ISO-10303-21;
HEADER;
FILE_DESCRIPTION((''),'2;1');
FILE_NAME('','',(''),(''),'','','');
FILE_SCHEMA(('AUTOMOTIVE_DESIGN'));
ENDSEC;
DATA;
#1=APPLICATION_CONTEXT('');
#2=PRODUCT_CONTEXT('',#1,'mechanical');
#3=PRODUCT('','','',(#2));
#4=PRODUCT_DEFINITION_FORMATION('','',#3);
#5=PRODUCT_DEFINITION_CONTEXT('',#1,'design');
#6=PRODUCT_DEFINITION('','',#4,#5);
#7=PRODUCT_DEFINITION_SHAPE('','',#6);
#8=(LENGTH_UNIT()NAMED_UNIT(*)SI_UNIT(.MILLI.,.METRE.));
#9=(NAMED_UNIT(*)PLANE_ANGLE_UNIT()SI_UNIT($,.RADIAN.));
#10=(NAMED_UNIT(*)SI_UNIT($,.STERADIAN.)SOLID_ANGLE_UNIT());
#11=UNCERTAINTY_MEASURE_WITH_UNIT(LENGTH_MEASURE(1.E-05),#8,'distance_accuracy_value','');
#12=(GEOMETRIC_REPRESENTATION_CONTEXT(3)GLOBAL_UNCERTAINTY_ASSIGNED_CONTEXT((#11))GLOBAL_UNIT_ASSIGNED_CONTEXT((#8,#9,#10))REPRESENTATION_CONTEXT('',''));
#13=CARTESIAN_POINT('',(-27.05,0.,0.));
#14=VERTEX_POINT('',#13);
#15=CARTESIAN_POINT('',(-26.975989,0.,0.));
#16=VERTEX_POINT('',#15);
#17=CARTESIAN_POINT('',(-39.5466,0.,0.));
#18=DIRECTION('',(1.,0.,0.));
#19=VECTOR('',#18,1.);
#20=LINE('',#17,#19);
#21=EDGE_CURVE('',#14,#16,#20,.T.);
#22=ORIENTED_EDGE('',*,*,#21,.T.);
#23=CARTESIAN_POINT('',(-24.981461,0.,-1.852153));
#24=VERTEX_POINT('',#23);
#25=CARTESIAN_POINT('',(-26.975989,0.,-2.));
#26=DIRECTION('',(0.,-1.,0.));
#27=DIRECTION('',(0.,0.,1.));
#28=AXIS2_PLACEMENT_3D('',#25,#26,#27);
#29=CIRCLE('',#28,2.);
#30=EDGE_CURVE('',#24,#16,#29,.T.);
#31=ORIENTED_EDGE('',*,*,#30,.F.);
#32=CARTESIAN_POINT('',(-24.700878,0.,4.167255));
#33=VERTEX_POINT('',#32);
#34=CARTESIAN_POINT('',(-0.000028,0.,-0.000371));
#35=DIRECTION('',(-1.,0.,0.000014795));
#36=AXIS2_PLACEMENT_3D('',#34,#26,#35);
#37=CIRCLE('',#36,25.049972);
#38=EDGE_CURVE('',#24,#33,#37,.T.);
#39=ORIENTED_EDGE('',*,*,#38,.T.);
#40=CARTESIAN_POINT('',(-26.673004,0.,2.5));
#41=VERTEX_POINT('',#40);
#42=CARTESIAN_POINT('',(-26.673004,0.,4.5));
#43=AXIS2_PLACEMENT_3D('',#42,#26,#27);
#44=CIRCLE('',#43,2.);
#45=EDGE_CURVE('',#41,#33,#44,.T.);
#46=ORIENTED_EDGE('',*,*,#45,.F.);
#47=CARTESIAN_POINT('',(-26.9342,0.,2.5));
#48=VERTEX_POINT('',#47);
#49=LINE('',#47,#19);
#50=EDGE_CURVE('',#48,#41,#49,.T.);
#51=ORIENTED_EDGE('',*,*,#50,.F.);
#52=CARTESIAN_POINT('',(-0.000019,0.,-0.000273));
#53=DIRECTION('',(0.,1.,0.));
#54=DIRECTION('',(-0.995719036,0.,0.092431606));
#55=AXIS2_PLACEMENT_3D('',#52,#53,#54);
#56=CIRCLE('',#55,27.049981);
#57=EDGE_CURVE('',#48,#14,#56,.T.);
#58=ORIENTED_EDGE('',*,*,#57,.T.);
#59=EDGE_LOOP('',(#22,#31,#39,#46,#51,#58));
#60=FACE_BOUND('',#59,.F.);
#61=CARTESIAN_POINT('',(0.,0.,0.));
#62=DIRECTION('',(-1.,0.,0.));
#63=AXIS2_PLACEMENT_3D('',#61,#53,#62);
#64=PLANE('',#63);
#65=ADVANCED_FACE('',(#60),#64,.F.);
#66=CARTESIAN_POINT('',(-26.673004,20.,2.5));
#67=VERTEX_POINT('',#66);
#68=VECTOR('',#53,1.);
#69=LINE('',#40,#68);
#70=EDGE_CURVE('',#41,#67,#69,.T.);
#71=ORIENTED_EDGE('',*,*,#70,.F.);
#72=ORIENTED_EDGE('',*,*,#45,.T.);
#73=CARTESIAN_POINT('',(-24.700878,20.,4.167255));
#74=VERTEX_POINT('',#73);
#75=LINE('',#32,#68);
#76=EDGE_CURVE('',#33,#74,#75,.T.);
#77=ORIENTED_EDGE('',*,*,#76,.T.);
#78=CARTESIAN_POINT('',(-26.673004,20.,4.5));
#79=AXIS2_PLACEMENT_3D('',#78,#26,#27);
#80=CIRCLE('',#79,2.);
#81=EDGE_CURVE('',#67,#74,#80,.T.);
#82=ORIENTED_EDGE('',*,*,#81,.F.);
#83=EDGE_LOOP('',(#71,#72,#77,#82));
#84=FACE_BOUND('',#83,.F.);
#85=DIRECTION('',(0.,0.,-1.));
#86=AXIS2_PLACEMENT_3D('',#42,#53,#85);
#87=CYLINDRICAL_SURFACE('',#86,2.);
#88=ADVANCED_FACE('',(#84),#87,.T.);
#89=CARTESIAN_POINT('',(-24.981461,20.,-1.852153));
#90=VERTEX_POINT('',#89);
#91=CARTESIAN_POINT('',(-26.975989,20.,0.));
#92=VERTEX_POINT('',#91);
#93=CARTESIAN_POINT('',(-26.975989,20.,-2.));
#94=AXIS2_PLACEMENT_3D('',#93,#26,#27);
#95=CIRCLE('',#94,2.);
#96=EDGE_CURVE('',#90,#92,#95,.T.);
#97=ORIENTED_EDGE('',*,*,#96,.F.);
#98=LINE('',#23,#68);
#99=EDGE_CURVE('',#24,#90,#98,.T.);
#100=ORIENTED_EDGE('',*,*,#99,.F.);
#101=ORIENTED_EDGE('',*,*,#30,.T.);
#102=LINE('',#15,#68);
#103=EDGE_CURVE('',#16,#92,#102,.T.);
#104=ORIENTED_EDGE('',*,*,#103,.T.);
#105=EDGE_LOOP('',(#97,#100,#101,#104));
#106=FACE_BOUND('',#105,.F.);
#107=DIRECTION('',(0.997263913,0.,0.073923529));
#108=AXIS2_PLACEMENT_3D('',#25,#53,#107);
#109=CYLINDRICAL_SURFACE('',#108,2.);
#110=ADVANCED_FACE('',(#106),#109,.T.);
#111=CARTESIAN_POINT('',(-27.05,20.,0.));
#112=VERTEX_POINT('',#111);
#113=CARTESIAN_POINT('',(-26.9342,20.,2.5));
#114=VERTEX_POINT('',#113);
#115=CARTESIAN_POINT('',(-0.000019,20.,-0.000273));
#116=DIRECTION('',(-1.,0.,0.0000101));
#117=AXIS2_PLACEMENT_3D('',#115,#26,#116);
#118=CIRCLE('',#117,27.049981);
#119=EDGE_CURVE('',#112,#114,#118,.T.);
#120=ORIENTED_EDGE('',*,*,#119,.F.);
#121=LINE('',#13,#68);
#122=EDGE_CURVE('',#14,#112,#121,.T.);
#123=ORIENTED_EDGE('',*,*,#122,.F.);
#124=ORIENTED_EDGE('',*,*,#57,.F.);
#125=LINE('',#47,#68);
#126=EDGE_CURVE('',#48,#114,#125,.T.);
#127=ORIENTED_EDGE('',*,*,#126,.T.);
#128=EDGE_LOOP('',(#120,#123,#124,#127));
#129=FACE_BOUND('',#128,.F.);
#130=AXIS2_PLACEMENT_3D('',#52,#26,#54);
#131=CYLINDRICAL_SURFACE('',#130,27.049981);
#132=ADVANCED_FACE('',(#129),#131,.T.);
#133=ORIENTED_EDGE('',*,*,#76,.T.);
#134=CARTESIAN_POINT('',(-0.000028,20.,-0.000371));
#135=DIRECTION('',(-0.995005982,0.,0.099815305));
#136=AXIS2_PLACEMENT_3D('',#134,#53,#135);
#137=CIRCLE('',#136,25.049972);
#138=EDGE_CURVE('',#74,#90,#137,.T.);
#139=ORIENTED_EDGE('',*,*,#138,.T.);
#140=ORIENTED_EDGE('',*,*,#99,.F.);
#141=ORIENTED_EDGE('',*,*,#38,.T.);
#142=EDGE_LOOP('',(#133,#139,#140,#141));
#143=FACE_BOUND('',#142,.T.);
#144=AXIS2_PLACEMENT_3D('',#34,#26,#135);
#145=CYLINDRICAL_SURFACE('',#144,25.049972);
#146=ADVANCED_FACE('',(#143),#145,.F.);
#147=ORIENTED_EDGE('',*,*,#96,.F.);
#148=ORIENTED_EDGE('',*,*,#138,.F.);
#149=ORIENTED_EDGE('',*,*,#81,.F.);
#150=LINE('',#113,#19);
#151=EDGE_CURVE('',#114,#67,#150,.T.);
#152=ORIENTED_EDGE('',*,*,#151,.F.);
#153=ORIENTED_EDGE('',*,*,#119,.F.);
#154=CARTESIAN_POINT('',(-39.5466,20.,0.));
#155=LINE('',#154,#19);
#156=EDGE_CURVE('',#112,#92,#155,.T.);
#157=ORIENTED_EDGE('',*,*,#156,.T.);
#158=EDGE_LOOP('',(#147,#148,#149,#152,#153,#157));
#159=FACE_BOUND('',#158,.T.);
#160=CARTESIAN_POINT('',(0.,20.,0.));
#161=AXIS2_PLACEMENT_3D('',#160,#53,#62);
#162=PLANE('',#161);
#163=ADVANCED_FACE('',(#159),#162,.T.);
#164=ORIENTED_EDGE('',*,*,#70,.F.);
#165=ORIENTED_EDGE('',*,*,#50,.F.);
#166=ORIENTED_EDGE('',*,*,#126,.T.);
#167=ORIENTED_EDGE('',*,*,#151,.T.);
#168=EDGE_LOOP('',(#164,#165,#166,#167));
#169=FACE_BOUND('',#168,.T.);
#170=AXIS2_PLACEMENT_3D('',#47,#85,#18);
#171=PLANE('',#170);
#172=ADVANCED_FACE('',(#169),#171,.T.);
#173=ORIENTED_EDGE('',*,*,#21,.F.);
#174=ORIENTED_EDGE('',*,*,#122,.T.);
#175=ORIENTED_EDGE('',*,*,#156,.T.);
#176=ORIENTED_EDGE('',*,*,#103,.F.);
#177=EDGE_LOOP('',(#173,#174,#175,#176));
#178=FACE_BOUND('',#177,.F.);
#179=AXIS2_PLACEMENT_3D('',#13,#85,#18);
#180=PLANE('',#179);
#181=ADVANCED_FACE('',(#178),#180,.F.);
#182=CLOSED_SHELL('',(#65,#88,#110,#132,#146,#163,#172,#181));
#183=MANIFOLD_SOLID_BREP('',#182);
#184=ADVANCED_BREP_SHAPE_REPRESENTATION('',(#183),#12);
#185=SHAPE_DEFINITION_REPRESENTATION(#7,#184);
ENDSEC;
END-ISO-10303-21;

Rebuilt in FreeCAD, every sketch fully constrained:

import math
import FreeCAD as App
import Part
import Sketcher
Q = App.Units.Quantity


def edges_at(feature, points):
    """Names of the edges that pass closest to the given points."""
    edges = feature.Shape.Edges
    near = lambda p: min(range(len(edges)), key=lambda i: edges[i].distToShape(Part.Vertex(*p))[0])
    return sorted({f"Edge{near(p) + 1}" for p in points})

doc = App.newDocument("Part")
body = doc.addObject("PartDesign::Body", "Body")

sketch1 = body.newObject("Sketcher::SketchObject", "Sketch")
sketch1.AttachmentSupport = (doc.getObject("XZ_Plane"), [""])
sketch1.MapMode = "FlatFace"
sketch1.addGeometry([
    Part.LineSegment(App.Vector(-24.9, 2.5, 0), App.Vector(-26.9, 2.5, 0)),
    Part.ArcOfCircle(Part.Circle(App.Vector(0, 0, 0), App.Vector(0, 0, 1), 27), math.radians(180), math.radians(535)),
    Part.LineSegment(App.Vector(-27.1, 0, 0), App.Vector(-25.1, 0, 0)),
    Part.ArcOfCircle(Part.Circle(App.Vector(0, 0, 0), App.Vector(0, 0, 1), 25), math.radians(180), math.radians(534)),
], False)
sketch1.addConstraint([
    Sketcher.Constraint("Coincident", 0, 2, 1, 2),
    Sketcher.Constraint("Coincident", 1, 1, 2, 1),
    Sketcher.Constraint("Coincident", 2, 2, 3, 1),
    Sketcher.Constraint("Coincident", 3, 2, 0, 1),
    Sketcher.Constraint("Horizontal", 0),
    Sketcher.Constraint("Horizontal", 2),
    Sketcher.Constraint("Coincident", 1, 3, -1, 1),
    Sketcher.Constraint("Coincident", 3, 3, -1, 1),
    Sketcher.Constraint("PointOnObject", 1, 1, -1),
    Sketcher.Constraint("DistanceX", 2, 1, 2, 2, Q("2 mm")),
    Sketcher.Constraint("Radius", 3, Q("25.05 mm")),
    Sketcher.Constraint("DistanceY", -1, 1, 0, 2, Q("2.5 mm")),
])
pad1 = body.newObject("PartDesign::Pad", "Pad")
pad1.Profile = sketch1
pad1.Length = 20
pad1.Reversed = True
doc.recompute()

fillet = body.newObject("PartDesign::Fillet", "Fillet")
fillet.Base = (pad1, edges_at(pad1, [(-25.05, 10, 0), (-24.925, 10, 2.5)]))
fillet.Radius = 2

doc.recompute()
